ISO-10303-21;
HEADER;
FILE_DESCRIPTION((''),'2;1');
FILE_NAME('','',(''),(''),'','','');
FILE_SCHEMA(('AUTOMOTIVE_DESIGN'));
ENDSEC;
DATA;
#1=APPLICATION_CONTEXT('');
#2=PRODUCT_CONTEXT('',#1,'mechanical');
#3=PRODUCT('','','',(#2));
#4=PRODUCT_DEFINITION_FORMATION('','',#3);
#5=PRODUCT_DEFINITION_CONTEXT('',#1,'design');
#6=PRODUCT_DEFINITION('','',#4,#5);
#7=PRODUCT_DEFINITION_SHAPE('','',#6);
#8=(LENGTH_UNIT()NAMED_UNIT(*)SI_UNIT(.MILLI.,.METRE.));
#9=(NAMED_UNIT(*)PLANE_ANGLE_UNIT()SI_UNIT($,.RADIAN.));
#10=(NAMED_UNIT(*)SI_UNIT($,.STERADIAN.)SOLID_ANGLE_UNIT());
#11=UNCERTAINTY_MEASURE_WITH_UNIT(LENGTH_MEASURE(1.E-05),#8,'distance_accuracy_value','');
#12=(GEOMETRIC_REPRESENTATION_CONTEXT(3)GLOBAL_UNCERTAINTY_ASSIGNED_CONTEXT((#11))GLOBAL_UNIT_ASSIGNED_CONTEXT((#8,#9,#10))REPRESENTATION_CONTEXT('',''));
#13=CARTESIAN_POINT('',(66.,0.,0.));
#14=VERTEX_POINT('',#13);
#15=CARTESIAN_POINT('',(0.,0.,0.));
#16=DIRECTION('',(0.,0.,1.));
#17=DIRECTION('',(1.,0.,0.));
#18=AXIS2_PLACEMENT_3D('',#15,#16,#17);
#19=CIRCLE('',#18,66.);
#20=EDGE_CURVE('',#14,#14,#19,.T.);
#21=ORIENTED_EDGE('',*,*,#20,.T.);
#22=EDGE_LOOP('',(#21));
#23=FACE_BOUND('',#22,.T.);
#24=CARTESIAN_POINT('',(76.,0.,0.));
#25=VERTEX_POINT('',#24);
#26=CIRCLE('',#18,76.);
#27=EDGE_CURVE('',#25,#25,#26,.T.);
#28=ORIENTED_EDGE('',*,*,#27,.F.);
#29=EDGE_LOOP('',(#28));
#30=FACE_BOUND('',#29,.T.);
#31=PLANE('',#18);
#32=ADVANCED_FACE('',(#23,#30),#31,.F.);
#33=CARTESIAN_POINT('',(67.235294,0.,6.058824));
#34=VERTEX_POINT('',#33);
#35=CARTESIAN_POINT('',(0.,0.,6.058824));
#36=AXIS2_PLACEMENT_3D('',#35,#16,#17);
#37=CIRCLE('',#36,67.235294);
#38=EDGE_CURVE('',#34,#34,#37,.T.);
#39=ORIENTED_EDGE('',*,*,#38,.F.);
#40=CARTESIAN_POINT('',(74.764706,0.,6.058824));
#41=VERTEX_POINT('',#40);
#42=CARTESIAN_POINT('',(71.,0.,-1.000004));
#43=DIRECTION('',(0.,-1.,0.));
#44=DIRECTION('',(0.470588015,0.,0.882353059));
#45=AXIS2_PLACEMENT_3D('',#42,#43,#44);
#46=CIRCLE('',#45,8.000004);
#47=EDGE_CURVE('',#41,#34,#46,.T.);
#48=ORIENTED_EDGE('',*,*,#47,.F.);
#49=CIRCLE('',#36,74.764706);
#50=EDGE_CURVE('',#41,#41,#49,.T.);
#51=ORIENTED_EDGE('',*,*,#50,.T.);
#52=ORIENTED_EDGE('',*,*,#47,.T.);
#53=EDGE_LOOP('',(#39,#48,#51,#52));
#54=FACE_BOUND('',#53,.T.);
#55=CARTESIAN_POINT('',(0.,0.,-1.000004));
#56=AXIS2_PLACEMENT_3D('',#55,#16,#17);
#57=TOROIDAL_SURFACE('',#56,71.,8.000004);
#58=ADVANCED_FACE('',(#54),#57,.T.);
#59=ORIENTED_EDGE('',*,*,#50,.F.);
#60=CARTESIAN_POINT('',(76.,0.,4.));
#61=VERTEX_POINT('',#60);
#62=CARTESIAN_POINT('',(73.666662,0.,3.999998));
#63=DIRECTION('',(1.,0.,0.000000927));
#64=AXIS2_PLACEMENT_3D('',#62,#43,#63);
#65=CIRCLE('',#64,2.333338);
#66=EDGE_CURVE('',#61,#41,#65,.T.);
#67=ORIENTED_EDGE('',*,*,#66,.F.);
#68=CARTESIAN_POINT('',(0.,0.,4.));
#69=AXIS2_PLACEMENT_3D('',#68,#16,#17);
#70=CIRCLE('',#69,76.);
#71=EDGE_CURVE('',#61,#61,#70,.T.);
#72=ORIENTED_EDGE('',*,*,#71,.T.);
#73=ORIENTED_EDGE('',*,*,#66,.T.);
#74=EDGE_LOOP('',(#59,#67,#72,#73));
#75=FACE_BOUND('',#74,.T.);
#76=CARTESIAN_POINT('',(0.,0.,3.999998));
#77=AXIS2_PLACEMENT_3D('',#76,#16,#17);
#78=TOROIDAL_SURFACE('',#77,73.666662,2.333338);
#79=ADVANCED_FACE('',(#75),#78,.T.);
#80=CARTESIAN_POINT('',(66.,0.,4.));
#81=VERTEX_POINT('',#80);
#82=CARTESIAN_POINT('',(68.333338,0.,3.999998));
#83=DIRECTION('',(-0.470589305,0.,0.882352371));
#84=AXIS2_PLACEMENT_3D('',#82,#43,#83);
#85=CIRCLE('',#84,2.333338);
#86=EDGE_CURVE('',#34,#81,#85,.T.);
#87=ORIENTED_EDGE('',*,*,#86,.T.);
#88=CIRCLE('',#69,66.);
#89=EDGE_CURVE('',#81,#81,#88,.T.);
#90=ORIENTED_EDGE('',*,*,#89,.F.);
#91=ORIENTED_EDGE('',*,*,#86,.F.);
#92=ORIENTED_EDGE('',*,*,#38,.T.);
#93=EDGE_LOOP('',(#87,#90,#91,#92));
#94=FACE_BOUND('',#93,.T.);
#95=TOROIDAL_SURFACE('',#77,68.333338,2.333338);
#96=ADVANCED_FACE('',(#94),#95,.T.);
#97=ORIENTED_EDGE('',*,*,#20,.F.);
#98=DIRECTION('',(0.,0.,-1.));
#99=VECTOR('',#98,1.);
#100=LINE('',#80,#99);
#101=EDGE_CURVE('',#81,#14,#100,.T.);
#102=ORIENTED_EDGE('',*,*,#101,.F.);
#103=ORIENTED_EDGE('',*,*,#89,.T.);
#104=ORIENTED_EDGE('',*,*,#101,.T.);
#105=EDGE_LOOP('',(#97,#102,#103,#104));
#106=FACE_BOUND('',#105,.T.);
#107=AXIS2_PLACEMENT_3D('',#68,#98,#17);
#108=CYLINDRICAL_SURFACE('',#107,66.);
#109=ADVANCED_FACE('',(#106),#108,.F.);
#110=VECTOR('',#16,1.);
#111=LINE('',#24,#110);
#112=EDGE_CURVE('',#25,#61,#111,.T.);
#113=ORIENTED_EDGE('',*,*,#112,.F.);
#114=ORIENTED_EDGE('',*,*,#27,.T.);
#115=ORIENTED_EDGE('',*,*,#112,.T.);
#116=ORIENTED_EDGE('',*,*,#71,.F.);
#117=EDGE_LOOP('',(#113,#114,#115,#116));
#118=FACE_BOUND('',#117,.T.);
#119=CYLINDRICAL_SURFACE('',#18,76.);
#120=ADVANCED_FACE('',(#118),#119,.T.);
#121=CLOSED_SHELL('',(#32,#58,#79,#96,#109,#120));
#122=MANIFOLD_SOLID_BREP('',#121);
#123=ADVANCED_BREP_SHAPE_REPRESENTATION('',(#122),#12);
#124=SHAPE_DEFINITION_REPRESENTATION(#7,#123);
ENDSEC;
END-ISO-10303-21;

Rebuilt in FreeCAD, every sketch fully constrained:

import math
import FreeCAD as App
import Part
import Sketcher
from FreeCAD import Vector

doc = App.newDocument("Part")
body = doc.addObject("PartDesign::Body", "Body")

sketch1 = body.newObject("Sketcher::SketchObject", "Sketch")
sketch1.AttachmentSupport = (doc.getObject("XZ_Plane"), [""])
sketch1.MapMode = "FlatFace"
sketch1.addGeometry([
    Part.LineSegment(Vector(66, 0, 0), Vector(76, 0, 0)),
    Part.LineSegment(Vector(76, 0, 0), Vector(76, 4, 0)),
    Part.ArcOfCircle(Part.Circle(Vector(73.7, 4, 0), Vector(0, 0, 1), 2.3), math.radians(0), math.radians(62)),
    Part.ArcOfCircle(Part.Circle(Vector(71, -1, 0), Vector(0, 0, 1), 8), math.radians(62), math.radians(118)),
    Part.ArcOfCircle(Part.Circle(Vector(68.3, 4, 0), Vector(0, 0, 1), 2.3), math.radians(118), math.radians(180)),
    Part.LineSegment(Vector(66, 4, 0), Vector(66, 0, 0)),
], False)
sketch1.addConstraint([
    Sketcher.Constraint("Coincident", 0, 2, 1, 1),
    Sketcher.Constraint("Tangent", 1, 2, 2, 1),
    Sketcher.Constraint("Tangent", 2, 2, 3, 1),
    Sketcher.Constraint("Tangent", 3, 2, 4, 1),
    Sketcher.Constraint("Tangent", 4, 2, 5, 1),
    Sketcher.Constraint("Coincident", 5, 2, 0, 1),
    Sketcher.Constraint("Horizontal", 0),
    Sketcher.Constraint("Vertical", 1),
    Sketcher.Constraint("Vertical", 5),
    Sketcher.Constraint("Equal", 2, 4),
    Sketcher.Constraint("PointOnObject", 0, 2, -1),
    Sketcher.Constraint("Horizontal", 2, 3, 4, 3),
    Sketcher.Constraint("DistanceX", 0, 1, 0, 2, 10.0),
    Sketcher.Constraint("DistanceY", 1, 1, 1, 2, 4.0),
    Sketcher.Constraint("DistanceX", -1, 1, 3, 3, 71.0),
    Sketcher.Constraint("DistanceY", 3, 3, 2, 3, 5.000002),
    Sketcher.Constraint("Radius", 2, 2.333338),
])
revolution = body.newObject("PartDesign::Revolution", "Revolution")
revolution.Profile = sketch1
revolution.ReferenceAxis = (sketch1, ["V_Axis"])
revolution.Angle = 360

doc.recompute()
